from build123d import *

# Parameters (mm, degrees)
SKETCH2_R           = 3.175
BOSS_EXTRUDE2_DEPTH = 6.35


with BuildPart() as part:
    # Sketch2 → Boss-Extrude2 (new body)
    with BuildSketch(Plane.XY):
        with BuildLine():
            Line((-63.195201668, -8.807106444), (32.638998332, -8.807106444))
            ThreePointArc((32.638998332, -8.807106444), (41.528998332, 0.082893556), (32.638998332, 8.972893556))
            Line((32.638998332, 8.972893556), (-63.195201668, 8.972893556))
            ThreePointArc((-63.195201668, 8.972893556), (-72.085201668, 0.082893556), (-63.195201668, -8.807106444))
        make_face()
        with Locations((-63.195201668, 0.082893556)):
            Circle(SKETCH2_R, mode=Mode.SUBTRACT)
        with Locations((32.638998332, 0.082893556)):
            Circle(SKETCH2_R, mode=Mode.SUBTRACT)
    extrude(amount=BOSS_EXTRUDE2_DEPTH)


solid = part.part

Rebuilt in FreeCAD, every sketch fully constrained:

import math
import FreeCAD as App
import Part
import Sketcher

V = App.Vector
Q = App.Units.Quantity

doc = App.newDocument("Part")
body = doc.addObject("PartDesign::Body", "Body")

# Sketch on XY plane
sketch1 = body.newObject("Sketcher::SketchObject", "Sketch")
sketch1.AttachmentSupport = (doc.getObject("XY_Plane"), [""])
sketch1.MapMode = "FlatFace"
sketch1.addGeometry([
    Part.LineSegment(V(-63.2, -8.8, 0), V(32.6, -8.8, 0)),  # 0
    Part.ArcOfCircle(Part.Circle(V(32.6, 0.1, 0), V(0, 0, 1), 8.9), math.radians(-90), math.radians(90)),  # 1
    Part.LineSegment(V(32.6, 9, 0), V(-63.2, 9, 0)),  # 2
    Part.ArcOfCircle(Part.Circle(V(-63.2, 0.1, 0), V(0, 0, 1), 8.9), math.radians(90), math.radians(270)),  # 3
    Part.Circle(V(-63.2, 0.1, 0), V(0, 0, 1), 3.2),  # 4
    Part.Circle(V(32.6, 0.1, 0), V(0, 0, 1), 3.2),  # 5
], False)
sketch1.addConstraint([
    Sketcher.Constraint("Tangent", 0, 2, 1, 1),
    Sketcher.Constraint("Tangent", 1, 2, 2, 1),
    Sketcher.Constraint("Tangent", 2, 2, 3, 1),
    Sketcher.Constraint("Tangent", 3, 2, 0, 1),
    Sketcher.Constraint("Horizontal", 0),
    Sketcher.Constraint("Horizontal", 2),
    Sketcher.Constraint("Coincident", 4, 3, 3, 3),
    Sketcher.Constraint("Coincident", 5, 3, 1, 3),
    Sketcher.Constraint("Equal", 4, 5),
    Sketcher.Constraint("Diameter", 4, Q("0.25 in")),
    Sketcher.Constraint("Radius", 1, Q("0.35 in")),
    Sketcher.Constraint("DistanceX", 0, 1, 0, 2, Q("3.773 in")),
    Sketcher.Constraint("DistanceX", -1, 1, 1, 3, Q("1.2849999 in")),
    Sketcher.Constraint("DistanceY", -1, 1, 1, 3, 0.082894),
])
pad1 = body.newObject("PartDesign::Pad", "Pad")
pad1.Profile = sketch1
pad1.Length = Q("0.25 in")

doc.recompute()
